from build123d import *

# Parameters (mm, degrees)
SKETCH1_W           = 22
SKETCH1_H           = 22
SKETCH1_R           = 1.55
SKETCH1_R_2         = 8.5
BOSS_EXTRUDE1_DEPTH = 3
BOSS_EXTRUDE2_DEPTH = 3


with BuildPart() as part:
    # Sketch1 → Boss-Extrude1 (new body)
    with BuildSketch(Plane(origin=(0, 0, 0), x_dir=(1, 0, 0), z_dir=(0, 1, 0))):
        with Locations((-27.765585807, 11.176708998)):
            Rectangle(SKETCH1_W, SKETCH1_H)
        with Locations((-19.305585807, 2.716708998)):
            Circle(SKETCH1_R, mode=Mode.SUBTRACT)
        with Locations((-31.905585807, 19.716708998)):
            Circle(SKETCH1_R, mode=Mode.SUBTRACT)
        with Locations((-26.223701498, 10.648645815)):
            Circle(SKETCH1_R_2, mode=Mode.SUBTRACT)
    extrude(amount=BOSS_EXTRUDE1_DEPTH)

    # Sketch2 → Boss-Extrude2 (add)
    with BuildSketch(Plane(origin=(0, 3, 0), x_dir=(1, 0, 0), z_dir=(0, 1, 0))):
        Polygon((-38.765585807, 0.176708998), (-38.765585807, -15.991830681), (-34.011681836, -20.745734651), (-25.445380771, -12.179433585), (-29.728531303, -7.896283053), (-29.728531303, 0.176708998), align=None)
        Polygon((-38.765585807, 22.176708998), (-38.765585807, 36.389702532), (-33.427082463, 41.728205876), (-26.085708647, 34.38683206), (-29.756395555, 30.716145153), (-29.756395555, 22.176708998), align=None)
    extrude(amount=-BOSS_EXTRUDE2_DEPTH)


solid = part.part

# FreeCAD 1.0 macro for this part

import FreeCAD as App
import Part
import Sketcher
from FreeCAD import Vector
Q = App.Units.Quantity


def add_polygon(sketch, points):
    """Adds a closed chain of lines whose ends are joined by coincident constraints."""
    first, n = sketch.GeometryCount, len(points)
    for a, b in zip(points, points[1:] + points[:1]):
        sketch.addGeometry(Part.LineSegment(App.Vector(*a, 0), App.Vector(*b, 0)), False)
    for i in range(n):
        sketch.addConstraint(Sketcher.Constraint("Coincident", first + i, 2, first + (i + 1) % n, 1))

doc = App.newDocument("Part")
body = doc.addObject("PartDesign::Body", "Body")

# Sketch on XZ plane
sketch1 = doc.addObject("Sketcher::SketchObject", "Sketch")
body.addObject(sketch1)
sketch1.AttachmentSupport = (doc.XZ_Plane, [""])
sketch1.MapMode = "FlatFace"
add_polygon(sketch1, [(-38.8, -22.2), (-38.8, -0.2), (-16.8, -0.2), (-16.8, -22.2)])  # lines 0-3
sketch1.addGeometry(Part.Circle(Vector(-19.3, -2.7, 0), Vector(0, 0, 1), 1.6), False)  # 4
sketch1.addGeometry(Part.Circle(Vector(-26.2, -10.6, 0), Vector(0, 0, 1), 8.5), False)  # 5
sketch1.addGeometry(Part.Circle(Vector(-31.9, -19.7, 0), Vector(0, 0, 1), 1.6), False)  # 6
sketch1.addConstraint([
    Sketcher.Constraint("Vertical", 0),
    Sketcher.Constraint("Horizontal", 1),
    Sketcher.Constraint("Vertical", 2),
    Sketcher.Constraint("Horizontal", 3),
    Sketcher.Constraint("Equal", 4, 6),
    Sketcher.Constraint("Equal", 3, 0),
    Sketcher.Constraint("Diameter", 5, Q("17 mm")),
    Sketcher.Constraint("Diameter", 4, Q("3.1 mm")),
    Sketcher.Constraint("DistanceX", 1, 1, 1, 2, Q("22 mm")),
    Sketcher.Constraint("DistanceY", 6, 3, 4, 3, Q("17 mm")),
    Sketcher.Constraint("DistanceX", 6, 3, 4, 3, Q("12.6 mm")),
    Sketcher.Constraint("DistanceX", 0, 2, 4, 3, Q("19.46 mm")),
    Sketcher.Constraint("DistanceY", 4, 3, 0, 2, Q("2.54 mm")),
    Sketcher.Constraint("DistanceX", 5, 3, -1, 1, Q("26.223701 mm")),
    Sketcher.Constraint("DistanceY", 4, 3, -1, 1, Q("2.716709 mm")),
    Sketcher.Constraint("DistanceX", 4, 3, -1, 1, Q("19.305586 mm")),
    Sketcher.Constraint("DistanceY", 5, 3, -1, 1, Q("10.648646 mm")),
])
pad1 = doc.addObject("PartDesign::Pad", "Pad")
body.addObject(pad1)
pad1.Profile = sketch1
pad1.Length = 3
pad1.Reversed = True

# Sketch on XZ plane
sketch2 = doc.addObject("Sketcher::SketchObject", "Sketch001")
body.addObject(sketch2)
sketch2.AttachmentSupport = (doc.XZ_Plane, [""])
sketch2.MapMode = "FlatFace"
sketch2.AttachmentOffset = App.Placement(Vector(0, 0, -3), App.Rotation())
add_polygon(sketch2, [(-39, 0), (-39, 16), (-34, 21), (-25, 12), (-30, 8), (-30, 0)])  # lines 0-5
add_polygon(sketch2, [(-39, -36), (-39, -22), (-30, -22), (-30, -31), (-26, -34), (-33, -42)])  # lines 6-11
sketch2.addConstraint([
    Sketcher.Constraint("Vertical", 0),
    Sketcher.Constraint("Vertical", 4),
    Sketcher.Constraint("Horizontal", 5),
    Sketcher.Constraint("Vertical", 6),
    Sketcher.Constraint("Horizontal", 7),
    Sketcher.Constraint("Vertical", 8),
    Sketcher.Constraint("Perpendicular", 1, 2),
    Sketcher.Constraint("Perpendicular", 2, 3),
    Sketcher.Constraint("Perpendicular", 3, 9),
    Sketcher.Constraint("Perpendicular", 9, 10),
    Sketcher.Constraint("Perpendicular", 10, 11),
    Sketcher.Constraint("Vertical", 5, 2, 6, 2),
    Sketcher.Constraint("Angle", 1, Q("45 deg")),
    Sketcher.Constraint("DistanceY", 6, 2, 5, 2, Q("22 mm")),
    Sketcher.Constraint("DistanceX", 7, 1, 7, 2, Q("9.00919 mm")),
    Sketcher.Constraint("DistanceY", 0, 1, 0, 2, Q("16.16854 mm")),
    Sketcher.Constraint("DistanceX", 1, 2, 2, 2, Q("8.566301 mm")),
    Sketcher.Constraint("Distance", 3, Q("6.05729 mm")),
    Sketcher.Constraint("Distance", 10, Q("10.38227 mm")),
    Sketcher.Constraint("DistanceX", 5, 2, 5, 1, Q("9.037055 mm")),
    Sketcher.Constraint("DistanceY", 6, 1, 6, 2, Q("14.212994 mm")),
    Sketcher.Constraint("DistanceY", -1, 1, 0, 2, Q("15.991831 mm")),
    Sketcher.Constraint("DistanceX", 1, 2, -1, 1, Q("34.011682 mm")),
    Sketcher.Constraint("DistanceX", 9, 2, -1, 1, Q("26.085709 mm")),
])
pad2 = doc.addObject("PartDesign::Pad", "Pad001")
body.addObject(pad2)
pad2.Profile = sketch2
pad2.Length = 3

doc.recompute()
